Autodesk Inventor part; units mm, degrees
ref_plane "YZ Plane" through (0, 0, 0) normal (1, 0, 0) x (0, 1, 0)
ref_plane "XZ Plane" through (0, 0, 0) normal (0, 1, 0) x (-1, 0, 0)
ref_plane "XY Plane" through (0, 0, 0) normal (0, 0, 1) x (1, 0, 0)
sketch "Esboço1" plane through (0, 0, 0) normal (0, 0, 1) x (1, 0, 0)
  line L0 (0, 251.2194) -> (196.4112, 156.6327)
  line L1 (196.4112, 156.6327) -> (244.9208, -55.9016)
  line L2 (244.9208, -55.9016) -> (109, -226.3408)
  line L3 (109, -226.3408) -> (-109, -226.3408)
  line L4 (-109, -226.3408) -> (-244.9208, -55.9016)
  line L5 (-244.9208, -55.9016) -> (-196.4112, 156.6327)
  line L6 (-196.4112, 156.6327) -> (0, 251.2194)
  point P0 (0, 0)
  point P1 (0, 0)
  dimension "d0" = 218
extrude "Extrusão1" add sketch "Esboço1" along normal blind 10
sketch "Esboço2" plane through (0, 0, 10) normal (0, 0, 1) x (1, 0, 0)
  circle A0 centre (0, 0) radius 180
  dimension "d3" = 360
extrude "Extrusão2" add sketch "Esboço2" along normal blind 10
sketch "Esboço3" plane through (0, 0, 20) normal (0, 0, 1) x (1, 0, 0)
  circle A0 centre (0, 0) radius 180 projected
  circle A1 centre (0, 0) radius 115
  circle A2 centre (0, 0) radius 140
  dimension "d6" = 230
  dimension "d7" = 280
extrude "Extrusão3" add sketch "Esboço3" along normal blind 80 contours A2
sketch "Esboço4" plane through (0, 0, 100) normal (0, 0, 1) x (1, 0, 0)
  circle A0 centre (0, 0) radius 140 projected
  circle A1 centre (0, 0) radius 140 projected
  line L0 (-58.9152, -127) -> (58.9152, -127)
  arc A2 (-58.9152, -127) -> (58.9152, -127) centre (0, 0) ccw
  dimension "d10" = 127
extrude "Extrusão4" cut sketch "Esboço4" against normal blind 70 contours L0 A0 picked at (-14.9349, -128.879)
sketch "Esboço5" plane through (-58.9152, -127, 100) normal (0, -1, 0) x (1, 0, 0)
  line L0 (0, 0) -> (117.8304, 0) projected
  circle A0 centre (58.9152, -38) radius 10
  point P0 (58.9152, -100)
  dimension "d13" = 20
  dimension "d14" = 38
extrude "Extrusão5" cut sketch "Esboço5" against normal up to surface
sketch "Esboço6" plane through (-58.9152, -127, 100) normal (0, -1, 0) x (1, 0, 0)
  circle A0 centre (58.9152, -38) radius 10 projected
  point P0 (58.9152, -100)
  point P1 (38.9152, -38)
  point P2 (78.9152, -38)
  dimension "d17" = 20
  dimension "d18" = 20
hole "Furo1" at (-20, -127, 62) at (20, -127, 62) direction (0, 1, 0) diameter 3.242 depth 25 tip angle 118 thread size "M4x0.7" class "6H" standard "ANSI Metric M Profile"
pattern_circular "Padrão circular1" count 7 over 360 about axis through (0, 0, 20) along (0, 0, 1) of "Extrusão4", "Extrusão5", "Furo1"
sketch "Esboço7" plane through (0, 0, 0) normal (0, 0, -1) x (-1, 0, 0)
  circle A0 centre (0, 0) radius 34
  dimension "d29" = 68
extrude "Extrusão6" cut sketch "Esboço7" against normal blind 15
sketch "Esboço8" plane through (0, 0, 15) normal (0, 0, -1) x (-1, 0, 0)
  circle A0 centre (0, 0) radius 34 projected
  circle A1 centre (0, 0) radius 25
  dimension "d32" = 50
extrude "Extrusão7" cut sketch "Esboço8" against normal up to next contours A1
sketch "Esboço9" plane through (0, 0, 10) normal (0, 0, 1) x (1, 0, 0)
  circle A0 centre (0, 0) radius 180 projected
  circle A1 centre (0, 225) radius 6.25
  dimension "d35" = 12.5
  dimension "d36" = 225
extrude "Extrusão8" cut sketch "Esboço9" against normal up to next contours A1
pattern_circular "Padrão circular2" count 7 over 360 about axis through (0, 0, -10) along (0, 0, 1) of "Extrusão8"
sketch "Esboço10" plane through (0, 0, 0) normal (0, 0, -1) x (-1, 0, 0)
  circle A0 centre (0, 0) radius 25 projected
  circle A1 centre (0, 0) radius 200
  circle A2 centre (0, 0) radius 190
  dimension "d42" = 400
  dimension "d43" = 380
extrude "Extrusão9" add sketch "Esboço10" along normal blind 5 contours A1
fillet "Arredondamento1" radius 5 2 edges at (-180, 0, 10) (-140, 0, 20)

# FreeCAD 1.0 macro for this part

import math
import FreeCAD as App
import Part
import Sketcher
from FreeCAD import Vector


def edges_at(feature, points):
    """Names of the edges that pass closest to the given points."""
    edges = feature.Shape.Edges
    near = lambda p: min(range(len(edges)), key=lambda i: edges[i].distToShape(Part.Vertex(*p))[0])
    return sorted({f"Edge{near(p) + 1}" for p in points})

doc = App.newDocument("Part")
body = doc.addObject("PartDesign::Body", "Body")

# Sketch on XY plane
sketch1 = doc.addObject("Sketcher::SketchObject", "Sketch")
body.addObject(sketch1)
sketch1.AttachmentSupport = (doc.XY_Plane, [""])
sketch1.MapMode = "FlatFace"
sketch1.addGeometry([
    Part.LineSegment(Vector(196, 157, 0), Vector(0, 251, 0)),  # 0
    Part.LineSegment(Vector(0, 251, 0), Vector(-196, 157, 0)),  # 1
    Part.LineSegment(Vector(-196, 157, 0), Vector(-245, -56, 0)),  # 2
    Part.LineSegment(Vector(-245, -56, 0), Vector(-109, -226, 0)),  # 3
    Part.LineSegment(Vector(-109, -226, 0), Vector(109, -226, 0)),  # 4
    Part.LineSegment(Vector(109, -226, 0), Vector(245, -56, 0)),  # 5
    Part.LineSegment(Vector(245, -56, 0), Vector(196, 157, 0)),  # 6
], False)
sketch1.addConstraint([
    Sketcher.Constraint("Coincident", 0, 2, 1, 1),
    Sketcher.Constraint("Coincident", 1, 2, 2, 1),
    Sketcher.Constraint("Coincident", 2, 2, 3, 1),
    Sketcher.Constraint("Coincident", 3, 2, 4, 1),
    Sketcher.Constraint("Coincident", 4, 2, 5, 1),
    Sketcher.Constraint("Coincident", 5, 2, 6, 1),
    Sketcher.Constraint("Coincident", 6, 2, 0, 1),
    Sketcher.Constraint("Horizontal", 4),
    Sketcher.Constraint("Symmetric", 2, 2, 5, 2, -2),
    Sketcher.Constraint("Symmetric", 1, 2, 6, 2, -2),
    Sketcher.Constraint("PointOnObject", 0, 2, -2),
    Sketcher.Constraint("Equal", 1, 2),
    Sketcher.Constraint("Equal", 2, 3),
    Sketcher.Constraint("Equal", 3, 5),
    Sketcher.Constraint("DistanceX", 4, 1, 4, 2, 218.0),
    Sketcher.Constraint("Distance", 0, 218.0),
    Sketcher.Constraint("DistanceY", 2, 2, 0, 2, 307.121),
    Sketcher.Constraint("DistanceX", 1, 2, 5, 2, 441.332),
    Sketcher.Constraint("DistanceY", -1, 1, 0, 2, 251.2194),
])
pad1 = doc.addObject("PartDesign::Pad", "Pad")
body.addObject(pad1)
pad1.Profile = sketch1
pad1.Length = 10

# Sketch on XY plane
sketch2 = doc.addObject("Sketcher::SketchObject", "Sketch001")
body.addObject(sketch2)
sketch2.AttachmentSupport = (doc.XY_Plane, [""])
sketch2.MapMode = "FlatFace"
sketch2.AttachmentOffset = App.Placement(Vector(0, 0, 10), App.Rotation())
sketch2.addGeometry(Part.Circle(Vector(0, 0, 0), Vector(0, 0, 1), 180), False)
sketch2.addConstraint([
    Sketcher.Constraint("Coincident", 0, 3, -1, 1),
    Sketcher.Constraint("Diameter", 0, 360.0),
])
pad2 = doc.addObject("PartDesign::Pad", "Pad001")
body.addObject(pad2)
pad2.Profile = sketch2
pad2.Length = 10

# Sketch on XY plane
sketch3 = doc.addObject("Sketcher::SketchObject", "Sketch002")
body.addObject(sketch3)
sketch3.AttachmentSupport = (doc.XY_Plane, [""])
sketch3.MapMode = "FlatFace"
sketch3.AttachmentOffset = App.Placement(Vector(0, 0, 20), App.Rotation())
sketch3.addGeometry([
    Part.Circle(Vector(0, 0, 0), Vector(0, 0, 1), 140),
    Part.Circle(Vector(0, 0, 0), Vector(0, 0, 1), 115),
], False)
sketch3.addConstraint([
    Sketcher.Constraint("Coincident", 0, 3, -1, 1),
    Sketcher.Constraint("Coincident", 1, 3, -1, 1),
    Sketcher.Constraint("Diameter", 0, 280.0),
    Sketcher.Constraint("Diameter", 1, 230.0),
])
pad3 = doc.addObject("PartDesign::Pad", "Pad002")
body.addObject(pad3)
pad3.Profile = sketch3
pad3.Length = 80

# Sketch on XY plane
sketch4 = doc.addObject("Sketcher::SketchObject", "Sketch003")
body.addObject(sketch4)
sketch4.AttachmentSupport = (doc.XY_Plane, [""])
sketch4.MapMode = "FlatFace"
sketch4.AttachmentOffset = App.Placement(Vector(0, 0, 100), App.Rotation())
sketch4.addGeometry([
    Part.LineSegment(Vector(59, -127, 0), Vector(-59, -127, 0)),
    Part.ArcOfCircle(Part.Circle(Vector(0, 0, 0), Vector(0, 0, 1), 140), math.radians(-115), math.radians(-65)),
], False)
sketch4.addConstraint([
    Sketcher.Constraint("Coincident", 0, 1, 1, 2),
    Sketcher.Constraint("Coincident", 1, 1, 0, 2),
    Sketcher.Constraint("Horizontal", 0),
    Sketcher.Constraint("Coincident", 1, 3, -1, 1),
    Sketcher.Constraint("DistanceY", 0, 1, -1, 1, 127.0),
    Sketcher.Constraint("Radius", 1, 140.0),
])
pocket1 = doc.addObject("PartDesign::Pocket", "Pocket")
body.addObject(pocket1)
pocket1.Profile = sketch4
pocket1.Length = 70

# Sketch on XZ plane
sketch5 = doc.addObject("Sketcher::SketchObject", "Sketch004")
body.addObject(sketch5)
sketch5.AttachmentSupport = (doc.XZ_Plane, [""])
sketch5.MapMode = "FlatFace"
sketch5.AttachmentOffset = App.Placement(Vector(0, 0, 127), App.Rotation())
sketch5.addGeometry(Part.Circle(Vector(0, 62, 0), Vector(0, 0, 1), 10), False)
sketch5.addConstraint([
    Sketcher.Constraint("PointOnObject", 0, 3, -2),
    Sketcher.Constraint("Diameter", 0, 20.0),
    Sketcher.Constraint("DistanceY", -1, 1, 0, 3, 62.0),
])
pocket2 = doc.addObject("PartDesign::Pocket", "Pocket001")
body.addObject(pocket2)
pocket2.Profile = sketch5
pocket2.Length = 12.4356

# Sketch on XZ plane
sketch6 = doc.addObject("Sketcher::SketchObject", "Sketch005")
body.addObject(sketch6)
sketch6.AttachmentSupport = (doc.XZ_Plane, [""])
sketch6.MapMode = "FlatFace"
sketch6.AttachmentOffset = App.Placement(Vector(0, 0, 127), App.Rotation())
sketch6.addGeometry([
    Part.Circle(Vector(-20, 62, 0), Vector(0, 0, 1), 1.6),
    Part.Circle(Vector(20, 62, 0), Vector(0, 0, 1), 1.6),
], False)
sketch6.addConstraint([
    Sketcher.Constraint("Equal", 0, 1),
    Sketcher.Constraint("Symmetric", 0, 3, 1, 3, -2),
    Sketcher.Constraint("Diameter", 0, 3.242),
    Sketcher.Constraint("DistanceX", 0, 3, -1, 1, 20.0),
    Sketcher.Constraint("DistanceY", -1, 1, 0, 3, 62.0),
])
doc.recompute()
hole = doc.addObject("PartDesign::Hole", "Hole")
body.addObject(hole)
hole.Profile = sketch6
hole.ThreadType = "None"
hole.Diameter = 3.242
hole.DepthType = "Dimension"
hole.Depth = 25
hole.DrillPoint = "Angled"
hole.DrillPointAngle = 118
doc.recompute()

polarpattern = doc.addObject("PartDesign::PolarPattern", "PolarPattern")
body.addObject(polarpattern)
polarpattern.Originals = [pocket1, pocket2, hole]
polarpattern.Axis = (doc.Z_Axis, [""])
polarpattern.Angle = 360
polarpattern.Occurrences = 7
body.Tip = polarpattern

# Sketch on XY plane
sketch7 = doc.addObject("Sketcher::SketchObject", "Sketch006")
body.addObject(sketch7)
sketch7.AttachmentSupport = (doc.XY_Plane, [""])
sketch7.MapMode = "FlatFace"
sketch7.addGeometry(Part.Circle(Vector(0, 0, 0), Vector(0, 0, 1), 34), False)
sketch7.addConstraint([
    Sketcher.Constraint("Coincident", 0, 3, -1, 1),
    Sketcher.Constraint("Diameter", 0, 68.0),
])
pocket3 = doc.addObject("PartDesign::Pocket", "Pocket002")
body.addObject(pocket3)
pocket3.Profile = sketch7
pocket3.Length = 15
pocket3.Reversed = True

# Sketch on XY plane
sketch8 = doc.addObject("Sketcher::SketchObject", "Sketch007")
body.addObject(sketch8)
sketch8.AttachmentSupport = (doc.XY_Plane, [""])
sketch8.MapMode = "FlatFace"
sketch8.AttachmentOffset = App.Placement(Vector(0, 0, 15), App.Rotation())
sketch8.addGeometry(Part.Circle(Vector(0, 0, 0), Vector(0, 0, 1), 25), False)
sketch8.addConstraint([
    Sketcher.Constraint("Coincident", 0, 3, -1, 1),
    Sketcher.Constraint("Diameter", 0, 50.0),
])
pocket4 = doc.addObject("PartDesign::Pocket", "Pocket003")
body.addObject(pocket4)
pocket4.Profile = sketch8
pocket4.Type = "UpToFirst"
pocket4.Reversed = True

# Sketch on XY plane
sketch9 = doc.addObject("Sketcher::SketchObject", "Sketch008")
body.addObject(sketch9)
sketch9.AttachmentSupport = (doc.XY_Plane, [""])
sketch9.MapMode = "FlatFace"
sketch9.AttachmentOffset = App.Placement(Vector(0, 0, 10), App.Rotation())
sketch9.addGeometry(Part.Circle(Vector(0, 225, 0), Vector(0, 0, 1), 6), False)
sketch9.addConstraint([
    Sketcher.Constraint("PointOnObject", 0, 3, -2),
    Sketcher.Constraint("Diameter", 0, 12.5),
    Sketcher.Constraint("DistanceY", -1, 1, 0, 3, 225.0),
])
pocket5 = doc.addObject("PartDesign::Pocket", "Pocket004")
body.addObject(pocket5)
pocket5.Profile = sketch9
pocket5.Type = "UpToFirst"
doc.recompute()

polarpattern2 = doc.addObject("PartDesign::PolarPattern", "PolarPattern001")
body.addObject(polarpattern2)
polarpattern2.Originals = [pocket5]
polarpattern2.Axis = (doc.Z_Axis, [""])
polarpattern2.Angle = 360
polarpattern2.Occurrences = 7
body.Tip = polarpattern2

# Sketch on XY plane
sketch10 = doc.addObject("Sketcher::SketchObject", "Sketch009")
body.addObject(sketch10)
sketch10.AttachmentSupport = (doc.XY_Plane, [""])
sketch10.MapMode = "FlatFace"
sketch10.addGeometry([
    Part.Circle(Vector(0, 0, 0), Vector(0, 0, 1), 200),
    Part.Circle(Vector(0, 0, 0), Vector(0, 0, 1), 190),
], False)
sketch10.addConstraint([
    Sketcher.Constraint("Coincident", 0, 3, -1, 1),
    Sketcher.Constraint("Coincident", 1, 3, -1, 1),
    Sketcher.Constraint("Diameter", 0, 400.0),
    Sketcher.Constraint("Diameter", 1, 380.0),
])
pad4 = doc.addObject("PartDesign::Pad", "Pad003")
body.addObject(pad4)
pad4.Profile = sketch10
pad4.Length = 5
pad4.Reversed = True
doc.recompute()

fillet = doc.addObject("PartDesign::Fillet", "Fillet")
body.addObject(fillet)
fillet.Base = (pad4, edges_at(pad4, [(-180, 0, 10), (-140, 0, 20)]))
fillet.Radius = 5

doc.recompute()
